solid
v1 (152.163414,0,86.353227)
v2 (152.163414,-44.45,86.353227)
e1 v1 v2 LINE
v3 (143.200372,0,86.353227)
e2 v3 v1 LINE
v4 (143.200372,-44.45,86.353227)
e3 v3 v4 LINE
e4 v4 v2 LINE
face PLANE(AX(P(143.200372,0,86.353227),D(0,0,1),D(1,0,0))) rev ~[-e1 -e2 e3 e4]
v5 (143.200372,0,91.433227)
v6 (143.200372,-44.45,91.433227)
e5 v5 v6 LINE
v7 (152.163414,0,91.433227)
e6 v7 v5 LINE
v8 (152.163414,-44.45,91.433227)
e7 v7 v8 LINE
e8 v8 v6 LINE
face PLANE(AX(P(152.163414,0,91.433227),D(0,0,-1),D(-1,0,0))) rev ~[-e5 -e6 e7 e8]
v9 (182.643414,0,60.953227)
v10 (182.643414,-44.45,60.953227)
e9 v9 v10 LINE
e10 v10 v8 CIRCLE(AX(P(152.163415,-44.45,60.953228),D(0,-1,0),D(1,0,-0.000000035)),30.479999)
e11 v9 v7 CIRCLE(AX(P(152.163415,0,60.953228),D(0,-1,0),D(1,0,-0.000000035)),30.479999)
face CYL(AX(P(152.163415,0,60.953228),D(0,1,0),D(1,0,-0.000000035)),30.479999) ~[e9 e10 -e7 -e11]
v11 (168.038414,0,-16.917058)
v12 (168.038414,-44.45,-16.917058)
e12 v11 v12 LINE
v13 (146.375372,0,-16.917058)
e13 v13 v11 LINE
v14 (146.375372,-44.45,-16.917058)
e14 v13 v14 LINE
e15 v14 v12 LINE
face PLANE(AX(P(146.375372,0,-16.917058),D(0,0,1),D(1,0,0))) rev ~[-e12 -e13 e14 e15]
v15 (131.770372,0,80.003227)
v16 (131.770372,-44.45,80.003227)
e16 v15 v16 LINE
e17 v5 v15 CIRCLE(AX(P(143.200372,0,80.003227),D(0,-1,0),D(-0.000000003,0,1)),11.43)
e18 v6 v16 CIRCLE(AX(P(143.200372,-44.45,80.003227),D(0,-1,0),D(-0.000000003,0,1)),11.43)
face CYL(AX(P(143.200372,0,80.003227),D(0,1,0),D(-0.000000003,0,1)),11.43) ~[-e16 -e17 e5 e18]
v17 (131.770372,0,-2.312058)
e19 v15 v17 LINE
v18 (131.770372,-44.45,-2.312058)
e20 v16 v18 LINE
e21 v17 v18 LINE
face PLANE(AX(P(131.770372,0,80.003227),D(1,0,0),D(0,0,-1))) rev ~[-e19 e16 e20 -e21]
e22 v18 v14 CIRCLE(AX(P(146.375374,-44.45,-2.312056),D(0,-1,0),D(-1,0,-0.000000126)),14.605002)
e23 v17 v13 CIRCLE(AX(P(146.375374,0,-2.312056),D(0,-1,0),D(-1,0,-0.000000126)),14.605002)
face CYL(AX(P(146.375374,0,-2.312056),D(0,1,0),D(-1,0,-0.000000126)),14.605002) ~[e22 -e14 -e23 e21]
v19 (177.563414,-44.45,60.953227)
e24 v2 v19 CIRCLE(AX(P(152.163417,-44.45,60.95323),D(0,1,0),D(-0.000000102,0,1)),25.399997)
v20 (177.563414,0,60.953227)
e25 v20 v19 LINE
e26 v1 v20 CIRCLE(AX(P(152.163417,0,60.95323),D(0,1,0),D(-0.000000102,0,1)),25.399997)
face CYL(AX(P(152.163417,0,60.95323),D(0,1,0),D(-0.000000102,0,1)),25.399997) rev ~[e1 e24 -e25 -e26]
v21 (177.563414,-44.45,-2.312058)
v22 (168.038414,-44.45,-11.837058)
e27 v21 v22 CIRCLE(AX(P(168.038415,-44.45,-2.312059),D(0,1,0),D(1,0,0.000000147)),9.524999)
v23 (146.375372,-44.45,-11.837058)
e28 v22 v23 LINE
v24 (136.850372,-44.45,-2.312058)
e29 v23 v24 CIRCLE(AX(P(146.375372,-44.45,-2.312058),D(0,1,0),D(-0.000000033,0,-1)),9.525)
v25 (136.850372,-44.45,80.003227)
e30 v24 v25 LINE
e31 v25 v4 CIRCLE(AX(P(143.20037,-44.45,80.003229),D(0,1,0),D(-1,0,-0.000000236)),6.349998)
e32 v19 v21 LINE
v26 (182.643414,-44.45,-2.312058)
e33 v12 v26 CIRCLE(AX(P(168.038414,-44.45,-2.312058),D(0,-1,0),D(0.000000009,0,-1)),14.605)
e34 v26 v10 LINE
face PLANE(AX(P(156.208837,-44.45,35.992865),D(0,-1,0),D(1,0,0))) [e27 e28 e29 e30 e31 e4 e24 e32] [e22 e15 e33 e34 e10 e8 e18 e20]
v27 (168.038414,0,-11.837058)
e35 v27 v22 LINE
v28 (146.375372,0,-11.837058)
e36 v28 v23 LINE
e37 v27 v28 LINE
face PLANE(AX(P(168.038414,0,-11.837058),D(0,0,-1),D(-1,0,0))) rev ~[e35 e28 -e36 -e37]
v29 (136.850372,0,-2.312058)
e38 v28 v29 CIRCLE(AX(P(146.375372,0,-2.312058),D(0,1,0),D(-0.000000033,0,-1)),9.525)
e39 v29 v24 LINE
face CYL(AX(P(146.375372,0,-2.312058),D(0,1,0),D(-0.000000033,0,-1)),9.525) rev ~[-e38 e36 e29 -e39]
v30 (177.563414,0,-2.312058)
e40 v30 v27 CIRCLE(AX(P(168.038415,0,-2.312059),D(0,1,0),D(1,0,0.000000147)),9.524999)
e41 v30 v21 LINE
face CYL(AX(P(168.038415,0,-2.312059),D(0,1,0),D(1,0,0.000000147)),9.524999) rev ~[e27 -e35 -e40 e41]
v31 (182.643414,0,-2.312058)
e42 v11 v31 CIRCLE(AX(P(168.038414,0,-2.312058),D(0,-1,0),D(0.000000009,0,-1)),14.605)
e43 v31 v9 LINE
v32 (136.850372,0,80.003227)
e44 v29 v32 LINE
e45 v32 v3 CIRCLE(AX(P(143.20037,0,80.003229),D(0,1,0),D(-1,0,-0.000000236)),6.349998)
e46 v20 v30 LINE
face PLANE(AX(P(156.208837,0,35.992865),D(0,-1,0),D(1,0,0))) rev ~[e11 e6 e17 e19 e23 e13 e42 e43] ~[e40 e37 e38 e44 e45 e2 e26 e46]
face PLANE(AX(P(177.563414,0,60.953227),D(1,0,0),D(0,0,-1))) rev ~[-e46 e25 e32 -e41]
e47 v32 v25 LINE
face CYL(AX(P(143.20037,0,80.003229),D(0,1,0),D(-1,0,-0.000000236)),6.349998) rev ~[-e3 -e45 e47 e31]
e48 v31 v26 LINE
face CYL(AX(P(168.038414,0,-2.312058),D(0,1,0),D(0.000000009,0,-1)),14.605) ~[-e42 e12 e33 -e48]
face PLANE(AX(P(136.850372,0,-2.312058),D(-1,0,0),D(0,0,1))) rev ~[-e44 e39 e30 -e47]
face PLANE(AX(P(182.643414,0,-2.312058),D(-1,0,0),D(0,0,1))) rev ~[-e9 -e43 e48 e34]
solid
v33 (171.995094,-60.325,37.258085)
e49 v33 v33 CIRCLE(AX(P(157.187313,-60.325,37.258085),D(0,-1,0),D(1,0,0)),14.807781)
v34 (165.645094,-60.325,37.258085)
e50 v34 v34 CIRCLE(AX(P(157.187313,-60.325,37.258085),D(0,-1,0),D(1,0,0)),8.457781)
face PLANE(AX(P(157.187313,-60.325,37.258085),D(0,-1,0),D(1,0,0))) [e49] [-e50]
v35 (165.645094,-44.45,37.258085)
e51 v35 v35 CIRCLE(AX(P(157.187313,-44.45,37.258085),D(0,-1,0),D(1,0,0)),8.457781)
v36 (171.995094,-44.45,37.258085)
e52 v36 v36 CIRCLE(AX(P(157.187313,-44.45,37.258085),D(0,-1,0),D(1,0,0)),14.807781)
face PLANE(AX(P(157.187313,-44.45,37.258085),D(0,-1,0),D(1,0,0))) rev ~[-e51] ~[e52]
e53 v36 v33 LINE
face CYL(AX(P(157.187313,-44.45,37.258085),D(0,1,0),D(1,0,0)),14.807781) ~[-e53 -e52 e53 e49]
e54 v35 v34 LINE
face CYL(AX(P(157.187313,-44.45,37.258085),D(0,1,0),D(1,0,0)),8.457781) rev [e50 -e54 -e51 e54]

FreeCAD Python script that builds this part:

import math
import FreeCAD as App
import Part
import Sketcher
from FreeCAD import Vector
Q = App.Units.Quantity

doc = App.newDocument("Part")
params = doc.addObject("Spreadsheet::Sheet", "Params")
for row, (alias, value) in enumerate([
    ("sketch1_radius", "0.9999999 in"),
    ("sketch1_radius2", "1.2 in"),
    ("sketch1_radius3", "0.45 in"),
    ("sketch1_radius4", "0.5750001 in"),
    ("pad1_length", "1.75 in"),
    ("pad2_length", "0.625 in"),
], start=1):
    params.set(f"A{row}", alias)
    params.set(f"B{row}", "=" + value)
    params.setAlias(f"B{row}", alias)

body = doc.addObject("PartDesign::Body", "Body")

# Sketch on XZ plane
sketch1 = doc.addObject("Sketcher::SketchObject", "Sketch")
body.addObject(sketch1)
sketch1.AttachmentSupport = (doc.XZ_Plane, [""])
sketch1.MapMode = "FlatFace"
sketch1.addGeometry(Part.LineSegment(Vector(131.770372, 80.003227, 0), Vector(131.770372, -2.312058, 0)), False)
sketch1.addGeometry(Part.ArcOfCircle(Part.Circle(Vector(146.375374, -2.312056, 0), Vector(0, 0, 1), 14.605002), math.radians(-179.999993), math.radians(-90.000007)), False)
sketch1.addGeometry(Part.LineSegment(Vector(146.375372, -16.917058, 0), Vector(168.038414, -16.917058, 0)), False)
sketch1.addGeometry(Part.ArcOfCircle(Part.Circle(Vector(168.038414, -2.312058, 0), Vector(0, 0, 1), 14.605), math.radians(-89.999999), math.radians(-0.000001)), False)
sketch1.addGeometry(Part.LineSegment(Vector(182.643414, -2.312058, 0), Vector(182.643414, 60.953227, 0)), False)
sketch1.addGeometry(Part.ArcOfCircle(Part.Circle(Vector(152.163415, 60.953228, 0), Vector(0, 0, 1), 30.479999), math.radians(-0.000002), math.radians(90.000002)), False)
sketch1.addGeometry(Part.LineSegment(Vector(152.163414, 91.433227, 0), Vector(143.200372, 91.433227, 0)), False)
sketch1.addGeometry(Part.ArcOfCircle(Part.Circle(Vector(143.200372, 80.003227, 0), Vector(0, 0, 1), 11.43), math.radians(90), math.radians(180)), False)
sketch1.addGeometry(Part.LineSegment(Vector(177.563414, 60.953227, 0), Vector(177.563414, -2.312058, 0)), False)
sketch1.addGeometry(Part.ArcOfCircle(Part.Circle(Vector(168.038415, -2.312059, 0), Vector(0, 0, 1), 9.524999), math.radians(-90.000008), math.radians(0.000008)), False)
sketch1.addGeometry(Part.LineSegment(Vector(168.038414, -11.837058, 0), Vector(146.375372, -11.837058, 0)), False)
sketch1.addGeometry(Part.ArcOfCircle(Part.Circle(Vector(146.375372, -2.312058, 0), Vector(0, 0, 1), 9.525), math.radians(-179.999998), math.radians(-90.000002)), False)
sketch1.addGeometry(Part.LineSegment(Vector(136.850372, -2.312058, 0), Vector(136.850372, 80.003227, 0)), False)
sketch1.addGeometry(Part.ArcOfCircle(Part.Circle(Vector(143.20037, 80.003229, 0), Vector(0, 0, 1), 6.349998), math.radians(89.999986), math.radians(180.000014)), False)
sketch1.addGeometry(Part.LineSegment(Vector(143.200372, 86.353227, 0), Vector(152.163414, 86.353227, 0)), False)
sketch1.addGeometry(Part.ArcOfCircle(Part.Circle(Vector(152.163417, 60.95323, 0), Vector(0, 0, 1), 25.399997), math.radians(-0.000006), math.radians(90.000006)), False)
sketch1.addConstraint(Sketcher.Constraint("Tangent", 0, 2, 1, 1))
sketch1.addConstraint(Sketcher.Constraint("Tangent", 1, 2, 2, 1))
sketch1.addConstraint(Sketcher.Constraint("Tangent", 2, 2, 3, 1))
sketch1.addConstraint(Sketcher.Constraint("Tangent", 3, 2, 4, 1))
sketch1.addConstraint(Sketcher.Constraint("Tangent", 4, 2, 5, 1))
sketch1.addConstraint(Sketcher.Constraint("Tangent", 5, 2, 6, 1))
sketch1.addConstraint(Sketcher.Constraint("Tangent", 6, 2, 7, 1))
sketch1.addConstraint(Sketcher.Constraint("Tangent", 7, 2, 0, 1))
sketch1.addConstraint(Sketcher.Constraint("Tangent", 8, 2, 9, 2))
sketch1.addConstraint(Sketcher.Constraint("Tangent", 9, 1, 10, 1))
sketch1.addConstraint(Sketcher.Constraint("Tangent", 10, 2, 11, 2))
sketch1.addConstraint(Sketcher.Constraint("Tangent", 11, 1, 12, 1))
sketch1.addConstraint(Sketcher.Constraint("Tangent", 12, 2, 13, 2))
sketch1.addConstraint(Sketcher.Constraint("Tangent", 13, 1, 14, 1))
sketch1.addConstraint(Sketcher.Constraint("Tangent", 14, 2, 15, 2))
sketch1.addConstraint(Sketcher.Constraint("Tangent", 15, 1, 8, 1))
sketch1.addConstraint(Sketcher.Constraint("Vertical", 0))
sketch1.addConstraint(Sketcher.Constraint("Horizontal", 2))
sketch1.addConstraint(Sketcher.Constraint("Vertical", 4))
sketch1.addConstraint(Sketcher.Constraint("Horizontal", 6))
sketch1.addConstraint(Sketcher.Constraint("Vertical", 8))
sketch1.addConstraint(Sketcher.Constraint("Horizontal", 10))
sketch1.addConstraint(Sketcher.Constraint("Vertical", 12))
sketch1.addConstraint(Sketcher.Constraint("Horizontal", 14))
sketch1.addConstraint(Sketcher.Constraint("Coincident", 9, 3, 3, 3))
sketch1.addConstraint(Sketcher.Constraint("Coincident", 11, 3, 1, 3))
sketch1.addConstraint(Sketcher.Constraint("Coincident", 13, 3, 7, 3))
sketch1.addConstraint(Sketcher.Constraint("Equal", 1, 3))
sketch1.addConstraint(Sketcher.Constraint("Horizontal", 4, 2, 15, 1))
sketch1.addConstraint(Sketcher.Constraint("Radius", 15, Q("0.9999999 in")))
sketch1.addConstraint(Sketcher.Constraint("Radius", 5, Q("1.2 in")))
sketch1.addConstraint(Sketcher.Constraint("Radius", 7, Q("0.45 in")))
sketch1.addConstraint(Sketcher.Constraint("Radius", 1, Q("0.5750001 in")))
sketch1.addConstraint(Sketcher.Constraint("DistanceX", 2, 1, 2, 2, Q("21.663042 mm")))
sketch1.addConstraint(Sketcher.Constraint("DistanceY", 0, 2, 0, 1, Q("82.315285 mm")))
sketch1.addConstraint(Sketcher.Constraint("DistanceY", -1, 1, 5, 3, Q("60.953228 mm")))
sketch1.addConstraint(Sketcher.Constraint("DistanceX", -1, 1, 13, 3, Q("143.20037 mm")))
sketch1.setExpression("Constraints[29]", "Params.sketch1_radius")
sketch1.setExpression("Constraints[30]", "Params.sketch1_radius2")
sketch1.setExpression("Constraints[31]", "Params.sketch1_radius3")
sketch1.setExpression("Constraints[32]", "Params.sketch1_radius4")
pad1 = doc.addObject("PartDesign::Pad", "Pad")
body.addObject(pad1)
pad1.Profile = sketch1
pad1.setExpression("Length", "Params.pad1_length")
body2 = doc.addObject("PartDesign::Body", "Body001")

# Sketch on XZ plane
sketch2 = doc.addObject("Sketcher::SketchObject", "Sketch001")
body2.addObject(sketch2)
sketch2.AttachmentSupport = (doc.getObject("XZ_Plane001"), [""])
sketch2.MapMode = "FlatFace"
sketch2.AttachmentOffset = App.Placement(Vector(0, 0, 1.75 * 25.4), App.Rotation())
sketch2.addGeometry(Part.Circle(Vector(157.187313, 37.258085, 0), Vector(0, 0, 1), 14.807781), False)
sketch2.addGeometry(Part.Circle(Vector(157.187313, 37.258085, 0), Vector(0, 0, 1), 8.457781), False)
sketch2.addConstraint(Sketcher.Constraint("Coincident", 1, 3, 0, 3))
sketch2.addConstraint(Sketcher.Constraint("Diameter", 0, Q("29.615562 mm")))
sketch2.addConstraint(Sketcher.Constraint("Diameter", 1, Q("16.915562 mm")))
sketch2.addConstraint(Sketcher.Constraint("DistanceX", -1, 1, 0, 3, Q("157.187313 mm")))
sketch2.addConstraint(Sketcher.Constraint("DistanceY", -1, 1, 0, 3, Q("37.258085 mm")))
pad2 = doc.addObject("PartDesign::Pad", "Pad001")
body2.addObject(pad2)
pad2.Profile = sketch2
pad2.setExpression("Length", "Params.pad2_length")

doc.recompute()
